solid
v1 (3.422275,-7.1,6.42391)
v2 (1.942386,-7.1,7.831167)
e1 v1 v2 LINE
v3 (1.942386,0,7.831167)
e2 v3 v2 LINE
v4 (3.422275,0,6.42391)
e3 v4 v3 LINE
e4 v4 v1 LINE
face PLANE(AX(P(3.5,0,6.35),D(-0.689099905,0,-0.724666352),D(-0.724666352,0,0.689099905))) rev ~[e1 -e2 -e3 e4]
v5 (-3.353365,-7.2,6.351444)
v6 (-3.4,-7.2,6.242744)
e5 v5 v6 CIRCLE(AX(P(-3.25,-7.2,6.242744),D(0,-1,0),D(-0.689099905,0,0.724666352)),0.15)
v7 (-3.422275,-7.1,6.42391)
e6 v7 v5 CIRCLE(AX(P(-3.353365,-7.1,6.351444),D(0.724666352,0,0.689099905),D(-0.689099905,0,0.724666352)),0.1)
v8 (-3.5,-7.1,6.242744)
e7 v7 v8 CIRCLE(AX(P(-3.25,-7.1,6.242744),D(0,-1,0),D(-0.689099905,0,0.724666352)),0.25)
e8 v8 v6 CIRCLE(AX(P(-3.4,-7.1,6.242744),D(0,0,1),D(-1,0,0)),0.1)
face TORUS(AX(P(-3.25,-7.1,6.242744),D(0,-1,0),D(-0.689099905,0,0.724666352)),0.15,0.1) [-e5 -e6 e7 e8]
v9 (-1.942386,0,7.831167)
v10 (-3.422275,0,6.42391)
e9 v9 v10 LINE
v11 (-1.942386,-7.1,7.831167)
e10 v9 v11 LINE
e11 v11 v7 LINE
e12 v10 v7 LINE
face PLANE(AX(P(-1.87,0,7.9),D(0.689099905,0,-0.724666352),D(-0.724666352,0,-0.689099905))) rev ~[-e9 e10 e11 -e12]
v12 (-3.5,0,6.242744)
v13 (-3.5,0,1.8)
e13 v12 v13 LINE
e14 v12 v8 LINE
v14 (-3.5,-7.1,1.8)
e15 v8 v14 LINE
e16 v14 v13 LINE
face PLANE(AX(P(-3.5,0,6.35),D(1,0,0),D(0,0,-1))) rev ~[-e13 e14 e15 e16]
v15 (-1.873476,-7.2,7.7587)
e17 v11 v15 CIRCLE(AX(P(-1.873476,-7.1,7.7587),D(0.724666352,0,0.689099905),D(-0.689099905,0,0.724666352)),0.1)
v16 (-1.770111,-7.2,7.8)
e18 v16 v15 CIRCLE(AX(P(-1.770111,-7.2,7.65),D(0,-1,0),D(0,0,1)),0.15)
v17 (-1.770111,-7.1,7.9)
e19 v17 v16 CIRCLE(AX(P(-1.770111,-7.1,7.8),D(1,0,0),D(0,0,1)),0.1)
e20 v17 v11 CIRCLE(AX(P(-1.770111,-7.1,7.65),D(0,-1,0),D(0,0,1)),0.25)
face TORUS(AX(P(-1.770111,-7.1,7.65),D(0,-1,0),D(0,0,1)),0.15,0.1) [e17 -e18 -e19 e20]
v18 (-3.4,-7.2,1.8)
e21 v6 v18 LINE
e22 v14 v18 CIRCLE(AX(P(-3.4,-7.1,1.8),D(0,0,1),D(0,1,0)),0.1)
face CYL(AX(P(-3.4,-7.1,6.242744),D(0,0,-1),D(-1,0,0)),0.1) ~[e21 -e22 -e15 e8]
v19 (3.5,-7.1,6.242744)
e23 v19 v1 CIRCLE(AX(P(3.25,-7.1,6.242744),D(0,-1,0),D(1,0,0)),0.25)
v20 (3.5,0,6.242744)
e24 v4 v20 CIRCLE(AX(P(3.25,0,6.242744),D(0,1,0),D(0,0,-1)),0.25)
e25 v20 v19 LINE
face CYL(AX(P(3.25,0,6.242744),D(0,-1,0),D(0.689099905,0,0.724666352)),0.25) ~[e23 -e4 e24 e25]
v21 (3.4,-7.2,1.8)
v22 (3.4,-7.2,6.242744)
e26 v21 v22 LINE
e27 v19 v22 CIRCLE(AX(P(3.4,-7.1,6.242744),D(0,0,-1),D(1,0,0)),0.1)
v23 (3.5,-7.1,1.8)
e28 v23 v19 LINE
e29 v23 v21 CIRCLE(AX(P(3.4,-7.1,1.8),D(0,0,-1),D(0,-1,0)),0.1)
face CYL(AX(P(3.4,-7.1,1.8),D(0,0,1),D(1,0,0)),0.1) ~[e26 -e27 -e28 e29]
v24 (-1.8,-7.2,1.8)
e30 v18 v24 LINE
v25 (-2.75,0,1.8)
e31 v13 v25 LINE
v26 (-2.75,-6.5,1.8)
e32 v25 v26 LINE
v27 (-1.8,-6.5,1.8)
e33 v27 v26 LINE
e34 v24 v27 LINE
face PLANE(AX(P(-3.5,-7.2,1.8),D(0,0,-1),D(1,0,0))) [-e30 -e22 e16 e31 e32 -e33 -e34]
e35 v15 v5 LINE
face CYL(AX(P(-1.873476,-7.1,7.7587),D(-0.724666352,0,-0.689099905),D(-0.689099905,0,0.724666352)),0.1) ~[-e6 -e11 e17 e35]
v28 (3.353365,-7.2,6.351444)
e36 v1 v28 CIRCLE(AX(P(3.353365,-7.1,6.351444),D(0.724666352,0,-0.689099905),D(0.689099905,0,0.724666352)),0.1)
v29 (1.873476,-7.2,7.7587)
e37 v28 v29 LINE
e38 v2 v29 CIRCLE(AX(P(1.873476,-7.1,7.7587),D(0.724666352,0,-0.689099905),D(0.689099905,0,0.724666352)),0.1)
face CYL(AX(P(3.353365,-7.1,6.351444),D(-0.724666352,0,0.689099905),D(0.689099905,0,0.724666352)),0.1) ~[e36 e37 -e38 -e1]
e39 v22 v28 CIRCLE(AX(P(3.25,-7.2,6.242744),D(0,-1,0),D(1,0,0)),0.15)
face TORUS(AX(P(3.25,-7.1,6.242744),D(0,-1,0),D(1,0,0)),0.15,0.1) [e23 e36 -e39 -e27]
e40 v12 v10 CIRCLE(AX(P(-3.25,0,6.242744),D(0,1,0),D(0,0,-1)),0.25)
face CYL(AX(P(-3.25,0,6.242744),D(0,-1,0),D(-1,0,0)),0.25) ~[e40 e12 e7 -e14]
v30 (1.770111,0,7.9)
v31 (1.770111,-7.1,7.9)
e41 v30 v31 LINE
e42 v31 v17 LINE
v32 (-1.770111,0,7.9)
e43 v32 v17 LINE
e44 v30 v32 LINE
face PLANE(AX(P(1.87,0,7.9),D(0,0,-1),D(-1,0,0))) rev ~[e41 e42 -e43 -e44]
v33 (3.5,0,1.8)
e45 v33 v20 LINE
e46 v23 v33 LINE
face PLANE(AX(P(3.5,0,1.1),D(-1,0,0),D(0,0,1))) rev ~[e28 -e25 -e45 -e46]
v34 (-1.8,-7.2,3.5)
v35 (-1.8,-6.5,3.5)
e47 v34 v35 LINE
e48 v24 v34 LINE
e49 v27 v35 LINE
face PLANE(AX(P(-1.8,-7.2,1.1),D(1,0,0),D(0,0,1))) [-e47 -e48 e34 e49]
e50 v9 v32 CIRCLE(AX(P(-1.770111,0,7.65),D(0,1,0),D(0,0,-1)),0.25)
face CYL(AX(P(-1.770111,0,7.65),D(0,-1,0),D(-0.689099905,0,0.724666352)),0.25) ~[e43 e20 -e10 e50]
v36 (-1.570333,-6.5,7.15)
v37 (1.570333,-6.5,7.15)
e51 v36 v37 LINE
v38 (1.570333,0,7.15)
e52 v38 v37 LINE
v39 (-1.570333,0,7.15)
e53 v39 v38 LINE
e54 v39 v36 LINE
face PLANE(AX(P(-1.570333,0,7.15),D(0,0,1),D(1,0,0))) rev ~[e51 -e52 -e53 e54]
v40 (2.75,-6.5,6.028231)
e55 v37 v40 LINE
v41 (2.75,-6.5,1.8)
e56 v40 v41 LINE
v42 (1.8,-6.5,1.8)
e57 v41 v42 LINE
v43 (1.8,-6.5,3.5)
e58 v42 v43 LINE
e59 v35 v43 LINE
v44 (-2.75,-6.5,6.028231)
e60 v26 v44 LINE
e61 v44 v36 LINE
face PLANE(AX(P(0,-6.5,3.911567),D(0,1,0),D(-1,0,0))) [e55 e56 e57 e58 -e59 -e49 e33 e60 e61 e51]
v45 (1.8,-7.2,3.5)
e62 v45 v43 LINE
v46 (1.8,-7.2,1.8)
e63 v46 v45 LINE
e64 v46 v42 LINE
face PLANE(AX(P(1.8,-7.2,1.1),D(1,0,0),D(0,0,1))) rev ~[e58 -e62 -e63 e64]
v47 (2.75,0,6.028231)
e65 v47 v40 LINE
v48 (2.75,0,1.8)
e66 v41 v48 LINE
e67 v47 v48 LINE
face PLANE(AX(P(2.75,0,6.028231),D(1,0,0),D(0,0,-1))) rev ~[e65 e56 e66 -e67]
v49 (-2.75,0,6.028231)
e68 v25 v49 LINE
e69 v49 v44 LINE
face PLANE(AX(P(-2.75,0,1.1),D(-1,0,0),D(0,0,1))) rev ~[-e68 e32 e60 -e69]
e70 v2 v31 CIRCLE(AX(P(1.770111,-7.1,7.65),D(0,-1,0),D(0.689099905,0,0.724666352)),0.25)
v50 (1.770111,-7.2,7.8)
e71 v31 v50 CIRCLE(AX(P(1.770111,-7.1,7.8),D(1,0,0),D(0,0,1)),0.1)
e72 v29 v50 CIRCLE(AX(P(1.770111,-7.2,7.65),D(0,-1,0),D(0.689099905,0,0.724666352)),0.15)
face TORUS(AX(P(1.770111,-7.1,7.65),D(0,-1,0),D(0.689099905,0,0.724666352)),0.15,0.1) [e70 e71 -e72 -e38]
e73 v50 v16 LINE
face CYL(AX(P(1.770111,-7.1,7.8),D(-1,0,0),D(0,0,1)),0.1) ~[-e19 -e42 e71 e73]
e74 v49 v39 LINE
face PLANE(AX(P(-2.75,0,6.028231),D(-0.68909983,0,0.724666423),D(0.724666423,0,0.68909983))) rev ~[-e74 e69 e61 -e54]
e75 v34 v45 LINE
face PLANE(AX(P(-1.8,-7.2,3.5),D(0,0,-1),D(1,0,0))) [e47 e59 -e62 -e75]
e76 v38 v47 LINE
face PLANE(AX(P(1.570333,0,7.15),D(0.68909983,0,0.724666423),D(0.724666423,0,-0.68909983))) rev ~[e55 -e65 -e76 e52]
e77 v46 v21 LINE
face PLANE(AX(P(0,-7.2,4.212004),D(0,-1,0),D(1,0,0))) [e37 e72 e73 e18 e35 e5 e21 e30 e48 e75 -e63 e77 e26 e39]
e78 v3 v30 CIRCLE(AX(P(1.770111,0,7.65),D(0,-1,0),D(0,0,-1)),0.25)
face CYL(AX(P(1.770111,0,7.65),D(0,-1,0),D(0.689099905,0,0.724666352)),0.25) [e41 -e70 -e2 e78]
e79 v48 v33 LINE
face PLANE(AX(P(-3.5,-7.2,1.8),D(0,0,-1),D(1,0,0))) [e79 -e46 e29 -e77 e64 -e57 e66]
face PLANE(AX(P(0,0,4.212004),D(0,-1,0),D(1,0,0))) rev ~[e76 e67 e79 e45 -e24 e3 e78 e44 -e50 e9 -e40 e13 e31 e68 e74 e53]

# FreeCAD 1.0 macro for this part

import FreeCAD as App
import Part
import Sketcher


def edges_at(feature, points):
    """Names of the edges that pass closest to the given points."""
    edges = feature.Shape.Edges
    near = lambda p: min(range(len(edges)), key=lambda i: edges[i].distToShape(Part.Vertex(*p))[0])
    return sorted({f"Edge{near(p) + 1}" for p in points})

doc = App.newDocument("Part")
params = doc.addObject("Spreadsheet::Sheet", "Params")
for row, (alias, value) in enumerate([
    ("sketch1_width", "7 mm"),
    ("sketch1_width2", "3.74 mm"),
    ("sketch1_height", "5.25 mm"),
    ("pad1_length", "7.2 mm"),
    ("sketch2_width", "3.6 mm"),
    ("sketch2_height", "2.4 mm"),
    ("sketch3_width", "5.5 mm"),
    ("pocket2_length", "6.5 mm"),
    ("sketch4_width", "7 mm"),
    ("sketch4_height", "0.7 mm"),
    ("fillet_radius", "0.25 mm"),
    ("fillet2_radius", "0.1 mm"),
], start=1):
    params.set(f"A{row}", alias)
    params.set(f"B{row}", "=" + value)
    params.setAlias(f"B{row}", alias)

body = doc.addObject("PartDesign::Body", "Body")

# Sketch on XZ plane
sketch1 = body.newObject("Sketcher::SketchObject", "Sketch")
sketch1.AttachmentSupport = (doc.getObject("XZ_Plane"), [""])
sketch1.MapMode = "FlatFace"
sketch1.addGeometry([
    Part.LineSegment(App.Vector(-3.5, 6.3, 0), App.Vector(-3.5, 1.1, 0)),  # 0
    Part.LineSegment(App.Vector(-3.5, 1.1, 0), App.Vector(3.5, 1.1, 0)),  # 1
    Part.LineSegment(App.Vector(3.5, 1.1, 0), App.Vector(3.5, 6.3, 0)),  # 2
    Part.LineSegment(App.Vector(3.5, 6.3, 0), App.Vector(1.9, 7.9, 0)),  # 3
    Part.LineSegment(App.Vector(1.9, 7.9, 0), App.Vector(-1.9, 7.9, 0)),  # 4
    Part.LineSegment(App.Vector(-1.9, 7.9, 0), App.Vector(-3.5, 6.3, 0)),  # 5
], False)
sketch1.addConstraint([
    Sketcher.Constraint("Coincident", 0, 2, 1, 1),
    Sketcher.Constraint("Coincident", 1, 2, 2, 1),
    Sketcher.Constraint("Coincident", 2, 2, 3, 1),
    Sketcher.Constraint("Coincident", 3, 2, 4, 1),
    Sketcher.Constraint("Coincident", 4, 2, 5, 1),
    Sketcher.Constraint("Coincident", 5, 2, 0, 1),
    Sketcher.Constraint("Vertical", 0),
    Sketcher.Constraint("Horizontal", 1),
    Sketcher.Constraint("Vertical", 2),
    Sketcher.Constraint("Horizontal", 4),
    Sketcher.Constraint("Symmetric", 2, 2, 5, 2, -2),
    Sketcher.Constraint("Equal", 3, 5),
    Sketcher.Constraint("DistanceX", 1, 1, 1, 2, 7.0),
    Sketcher.Constraint("DistanceX", 4, 2, 4, 1, 3.74),
    Sketcher.Constraint("DistanceY", 0, 2, 0, 1, 5.25),
    Sketcher.Constraint("DistanceY", -1, 1, 0, 2, 1.1),
    Sketcher.Constraint("DistanceY", -1, 1, 3, 2, 7.9),
])
sketch1.setExpression("Constraints[12]", "Params.sketch1_width")
sketch1.setExpression("Constraints[13]", "Params.sketch1_width2")
sketch1.setExpression("Constraints[14]", "Params.sketch1_height")
pad1 = body.newObject("PartDesign::Pad", "Pad")
pad1.Profile = sketch1
pad1.setExpression("Length", "Params.pad1_length")

# Sketch on XZ plane
sketch2 = body.newObject("Sketcher::SketchObject", "Sketch001")
sketch2.AttachmentSupport = (doc.getObject("XZ_Plane"), [""])
sketch2.MapMode = "FlatFace"
sketch2.AttachmentOffset = App.Placement(App.Vector(0, 0, 7.2), App.Rotation())
sketch2.addGeometry([
    Part.LineSegment(App.Vector(-1.8, 3.5, 0), App.Vector(-1.8, 1.1, 0)),
    Part.LineSegment(App.Vector(-1.8, 1.1, 0), App.Vector(1.8, 1.1, 0)),
    Part.LineSegment(App.Vector(1.8, 1.1, 0), App.Vector(1.8, 3.5, 0)),
    Part.LineSegment(App.Vector(1.8, 3.5, 0), App.Vector(-1.8, 3.5, 0)),
], False)
sketch2.addConstraint([
    Sketcher.Constraint("Coincident", 0, 2, 1, 1),
    Sketcher.Constraint("Coincident", 1, 2, 2, 1),
    Sketcher.Constraint("Coincident", 2, 2, 3, 1),
    Sketcher.Constraint("Coincident", 3, 2, 0, 1),
    Sketcher.Constraint("Vertical", 0),
    Sketcher.Constraint("Horizontal", 1),
    Sketcher.Constraint("Vertical", 2),
    Sketcher.Constraint("Horizontal", 3),
    Sketcher.Constraint("DistanceX", 1, 1, 1, 2, 3.6),
    Sketcher.Constraint("DistanceY", 0, 2, 0, 1, 2.4),
    Sketcher.Constraint("DistanceX", 0, 2, -1, 1, 1.8),
    Sketcher.Constraint("DistanceY", -1, 1, 0, 2, 1.1),
])
sketch2.setExpression("Constraints[8]", "Params.sketch2_width")
sketch2.setExpression("Constraints[9]", "Params.sketch2_height")
pocket1 = body.newObject("PartDesign::Pocket", "Pocket")
pocket1.Profile = sketch2
pocket1.Type = "ThroughAll"

# Sketch on XZ plane
sketch3 = body.newObject("Sketcher::SketchObject", "Sketch002")
sketch3.AttachmentSupport = (doc.getObject("XZ_Plane"), [""])
sketch3.MapMode = "FlatFace"
sketch3.addGeometry([
    Part.LineSegment(App.Vector(2.8, 1.1, 0), App.Vector(-2.8, 1.1, 0)),  # 0
    Part.LineSegment(App.Vector(-2.8, 1.1, 0), App.Vector(-2.8, 6, 0)),  # 1
    Part.LineSegment(App.Vector(-2.8, 6, 0), App.Vector(-1.6, 7.2, 0)),  # 2
    Part.LineSegment(App.Vector(-1.6, 7.2, 0), App.Vector(1.6, 7.2, 0)),  # 3
    Part.LineSegment(App.Vector(1.6, 7.2, 0), App.Vector(2.8, 6, 0)),  # 4
    Part.LineSegment(App.Vector(2.8, 6, 0), App.Vector(2.8, 1.1, 0)),  # 5
], False)
sketch3.addConstraint([
    Sketcher.Constraint("Coincident", 0, 2, 1, 1),
    Sketcher.Constraint("Coincident", 1, 2, 2, 1),
    Sketcher.Constraint("Coincident", 2, 2, 3, 1),
    Sketcher.Constraint("Coincident", 3, 2, 4, 1),
    Sketcher.Constraint("Coincident", 4, 2, 5, 1),
    Sketcher.Constraint("Coincident", 5, 2, 0, 1),
    Sketcher.Constraint("Horizontal", 0),
    Sketcher.Constraint("Vertical", 1),
    Sketcher.Constraint("Horizontal", 3),
    Sketcher.Constraint("Vertical", 5),
    Sketcher.Constraint("Symmetric", 1, 2, 4, 2, -2),
    Sketcher.Constraint("Equal", 2, 4),
    Sketcher.Constraint("DistanceX", 0, 2, 0, 1, 5.5),
    Sketcher.Constraint("DistanceY", -1, 1, 0, 2, 1.1),
    Sketcher.Constraint("DistanceY", -1, 1, 2, 2, 7.15),
    Sketcher.Constraint("DistanceY", 1, 1, 1, 2, 4.928231),
    Sketcher.Constraint("DistanceX", 3, 1, 3, 2, 3.140666),
])
sketch3.setExpression("Constraints[12]", "Params.sketch3_width")
pocket2 = body.newObject("PartDesign::Pocket", "Pocket001")
pocket2.Profile = sketch3
pocket2.setExpression("Length", "Params.pocket2_length")
pocket2.Reversed = True

# Sketch on XZ plane
sketch4 = body.newObject("Sketcher::SketchObject", "Sketch003")
sketch4.AttachmentSupport = (doc.getObject("XZ_Plane"), [""])
sketch4.MapMode = "FlatFace"
sketch4.AttachmentOffset = App.Placement(App.Vector(0, 0, 7.2), App.Rotation())
sketch4.addGeometry([
    Part.LineSegment(App.Vector(-3.5, 1.8, 0), App.Vector(-3.5, 1.1, 0)),
    Part.LineSegment(App.Vector(-3.5, 1.1, 0), App.Vector(3.5, 1.1, 0)),
    Part.LineSegment(App.Vector(3.5, 1.1, 0), App.Vector(3.5, 1.8, 0)),
    Part.LineSegment(App.Vector(3.5, 1.8, 0), App.Vector(-3.5, 1.8, 0)),
], False)
sketch4.addConstraint([
    Sketcher.Constraint("Coincident", 0, 2, 1, 1),
    Sketcher.Constraint("Coincident", 1, 2, 2, 1),
    Sketcher.Constraint("Coincident", 2, 2, 3, 1),
    Sketcher.Constraint("Coincident", 3, 2, 0, 1),
    Sketcher.Constraint("Vertical", 0),
    Sketcher.Constraint("Horizontal", 1),
    Sketcher.Constraint("Vertical", 2),
    Sketcher.Constraint("Horizontal", 3),
    Sketcher.Constraint("DistanceX", 1, 1, 1, 2, 7.0),
    Sketcher.Constraint("DistanceY", 0, 2, 0, 1, 0.7),
    Sketcher.Constraint("DistanceX", 0, 2, -1, 1, 3.5),
    Sketcher.Constraint("DistanceY", -1, 1, 0, 2, 1.1),
])
sketch4.setExpression("Constraints[8]", "Params.sketch4_width")
sketch4.setExpression("Constraints[9]", "Params.sketch4_height")
pocket3 = body.newObject("PartDesign::Pocket", "Pocket002")
pocket3.Profile = sketch4
pocket3.Type = "ThroughAll"
doc.recompute()

fillet = body.newObject("PartDesign::Fillet", "Fillet")
fillet.Base = (pocket3, edges_at(pocket3, [
    (-3.5, -3.6, 6.35),
    (-1.87, -3.6, 7.9),
    (1.87, -3.6, 7.9),
    (3.5, -3.6, 6.35),
]))
fillet.setExpression("Radius", "Params.fillet_radius")
doc.recompute()

fillet2 = body.newObject("PartDesign::Fillet", "Fillet001")
fillet2.Base = (fillet, edges_at(fillet, [(-3.5, -7.2, 4.021)]))
fillet2.setExpression("Radius", "Params.fillet2_radius")

doc.recompute()
